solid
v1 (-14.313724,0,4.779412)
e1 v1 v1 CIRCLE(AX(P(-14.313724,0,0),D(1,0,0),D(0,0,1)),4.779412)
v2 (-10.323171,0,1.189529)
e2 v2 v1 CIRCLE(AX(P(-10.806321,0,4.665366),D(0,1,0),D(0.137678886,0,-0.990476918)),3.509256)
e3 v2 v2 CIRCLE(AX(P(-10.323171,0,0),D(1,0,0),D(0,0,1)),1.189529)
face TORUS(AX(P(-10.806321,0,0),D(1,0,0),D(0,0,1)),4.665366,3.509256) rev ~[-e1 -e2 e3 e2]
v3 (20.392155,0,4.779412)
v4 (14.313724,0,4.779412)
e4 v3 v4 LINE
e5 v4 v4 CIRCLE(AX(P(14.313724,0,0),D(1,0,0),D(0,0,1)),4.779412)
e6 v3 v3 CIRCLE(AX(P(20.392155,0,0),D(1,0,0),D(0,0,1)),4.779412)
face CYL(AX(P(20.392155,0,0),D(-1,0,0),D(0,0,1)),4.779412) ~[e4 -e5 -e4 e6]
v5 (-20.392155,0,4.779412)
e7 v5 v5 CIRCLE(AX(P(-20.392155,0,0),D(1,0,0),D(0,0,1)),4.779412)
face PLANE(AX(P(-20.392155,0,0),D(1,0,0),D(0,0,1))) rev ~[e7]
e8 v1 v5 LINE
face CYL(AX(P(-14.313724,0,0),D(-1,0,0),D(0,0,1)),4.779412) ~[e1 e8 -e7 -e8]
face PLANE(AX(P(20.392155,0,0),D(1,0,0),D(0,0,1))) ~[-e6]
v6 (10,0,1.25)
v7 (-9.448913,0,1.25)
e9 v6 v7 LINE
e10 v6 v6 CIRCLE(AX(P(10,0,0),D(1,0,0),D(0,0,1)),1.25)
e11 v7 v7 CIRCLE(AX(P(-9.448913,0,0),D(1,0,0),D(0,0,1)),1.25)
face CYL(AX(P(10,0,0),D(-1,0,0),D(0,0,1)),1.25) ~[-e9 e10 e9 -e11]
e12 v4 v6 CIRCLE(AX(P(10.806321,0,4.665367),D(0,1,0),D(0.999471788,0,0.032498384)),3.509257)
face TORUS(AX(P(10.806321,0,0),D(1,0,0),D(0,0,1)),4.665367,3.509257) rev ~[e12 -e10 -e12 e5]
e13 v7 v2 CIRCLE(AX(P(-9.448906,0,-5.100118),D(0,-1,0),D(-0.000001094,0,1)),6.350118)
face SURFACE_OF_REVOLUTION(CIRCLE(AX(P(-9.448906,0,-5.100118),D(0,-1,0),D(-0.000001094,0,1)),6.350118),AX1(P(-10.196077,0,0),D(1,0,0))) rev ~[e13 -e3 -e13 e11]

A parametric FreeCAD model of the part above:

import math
import FreeCAD as App
import Part
import Sketcher

V = App.Vector

doc = App.newDocument("Part")
body = doc.addObject("PartDesign::Body", "Body")

sketch1 = body.newObject("Sketcher::SketchObject", "Sketch")
sketch1.AttachmentSupport = (doc.getObject("XZ_Plane"), [""])
sketch1.MapMode = "FlatFace"
sketch1.addGeometry([
    Part.LineSegment(V(10, 1.2, 0), V(-9.4, 1.2, 0)),
    Part.ArcOfCircle(Part.Circle(V(-9.4, -5.1, 0), V(0, 0, 1), 6.4), math.radians(90), math.radians(97.91)),
    Part.ArcOfCircle(Part.Circle(V(-10.8, 4.7, 0), V(0, 0, 1), 3.5), math.radians(178), math.radians(278)),
    Part.LineSegment(V(-14.3, 4.8, 0), V(-20.4, 4.8, 0)),
    Part.LineSegment(V(-20.4, 4.8, 0), V(-20.4, 0, 0)),
    Part.LineSegment(V(-20.4, 0, 0), V(20.4, 0, 0)),
    Part.LineSegment(V(20.4, 0, 0), V(20.4, 4.8, 0)),
    Part.LineSegment(V(20.4, 4.8, 0), V(14.3, 4.8, 0)),
    Part.ArcOfCircle(Part.Circle(V(10.8, 4.7, 0), V(0, 0, 1), 3.5), math.radians(-103), math.radians(2)),
], False)
sketch1.addConstraint([
    Sketcher.Constraint("Tangent", 0, 2, 1, 1),
    Sketcher.Constraint("Tangent", 1, 2, 2, 2),
    Sketcher.Constraint("Coincident", 2, 1, 3, 1),
    Sketcher.Constraint("Coincident", 3, 2, 4, 1),
    Sketcher.Constraint("Coincident", 4, 2, 5, 1),
    Sketcher.Constraint("Coincident", 5, 2, 6, 1),
    Sketcher.Constraint("Coincident", 6, 2, 7, 1),
    Sketcher.Constraint("Coincident", 7, 2, 8, 2),
    Sketcher.Constraint("Coincident", 8, 1, 0, 1),
    Sketcher.Constraint("Horizontal", 0),
    Sketcher.Constraint("Horizontal", 3),
    Sketcher.Constraint("Vertical", 4),
    Sketcher.Constraint("Horizontal", 5),
    Sketcher.Constraint("Vertical", 6),
    Sketcher.Constraint("Horizontal", 7),
    Sketcher.Constraint("Equal", 2, 8),
    Sketcher.Constraint("Symmetric", 4, 2, 5, 2, -1, 1),
    Sketcher.Constraint("Symmetric", 2, 3, 8, 3, -2),
    Sketcher.Constraint("Horizontal", 3, 2, 6, 2),
    Sketcher.Constraint("DistanceX", -1, 1, 8, 1, 10.0),
    Sketcher.Constraint("DistanceY", -1, 1, 0, 2, 1.25),
    Sketcher.Constraint("Radius", 1, 6.350118),
    Sketcher.Constraint("Radius", 2, 3.509256),
    Sketcher.Constraint("DistanceX", 3, 2, 3, 1, 6.078431),
    Sketcher.Constraint("DistanceX", 5, 1, 5, 2, 40.78431),
    Sketcher.Constraint("DistanceY", 4, 2, 4, 1, 4.779412),
])
revolution = body.newObject("PartDesign::Revolution", "Revolution")
revolution.Profile = sketch1
revolution.ReferenceAxis = (sketch1, ["H_Axis"])
revolution.Angle = 360

doc.recompute()
